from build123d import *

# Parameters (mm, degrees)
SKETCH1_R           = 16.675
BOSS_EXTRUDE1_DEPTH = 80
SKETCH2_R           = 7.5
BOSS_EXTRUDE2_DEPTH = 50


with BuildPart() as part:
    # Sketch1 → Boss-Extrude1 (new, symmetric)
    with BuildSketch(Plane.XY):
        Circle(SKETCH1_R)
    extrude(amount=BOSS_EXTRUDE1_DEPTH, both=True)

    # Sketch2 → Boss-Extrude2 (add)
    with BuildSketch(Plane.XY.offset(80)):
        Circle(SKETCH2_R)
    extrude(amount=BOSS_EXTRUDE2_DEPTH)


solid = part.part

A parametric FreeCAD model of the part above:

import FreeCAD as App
import Part
import Sketcher
from FreeCAD import Vector

doc = App.newDocument("Part")
body = doc.addObject("PartDesign::Body", "Body")

# Sketch on XY plane
sketch1 = doc.addObject("Sketcher::SketchObject", "Sketch")
body.addObject(sketch1)
sketch1.AttachmentSupport = (doc.XY_Plane, [""])
sketch1.MapMode = "FlatFace"
sketch1.addGeometry(Part.Circle(Vector(0, 0, 0), Vector(0, 0, 1), 17), False)
sketch1.addConstraint([
    Sketcher.Constraint("Coincident", 0, 3, -1, 1),
    Sketcher.Constraint("Diameter", 0, 33.35),
])
pad1 = doc.addObject("PartDesign::Pad", "Pad")
body.addObject(pad1)
pad1.Profile = sketch1
pad1.Length = 160
pad1.Midplane = True

# Sketch on XY plane
sketch2 = doc.addObject("Sketcher::SketchObject", "Sketch001")
body.addObject(sketch2)
sketch2.AttachmentSupport = (doc.XY_Plane, [""])
sketch2.MapMode = "FlatFace"
sketch2.AttachmentOffset = App.Placement(Vector(0, 0, 80), App.Rotation())
sketch2.addGeometry(Part.Circle(Vector(0, 0, 0), Vector(0, 0, 1), 8), False)
sketch2.addConstraint([
    Sketcher.Constraint("Coincident", 0, 3, -1, 1),
    Sketcher.Constraint("Diameter", 0, 15.0),
])
pad2 = doc.addObject("PartDesign::Pad", "Pad001")
body.addObject(pad2)
pad2.Profile = sketch2
pad2.Length = 50

doc.recompute()
